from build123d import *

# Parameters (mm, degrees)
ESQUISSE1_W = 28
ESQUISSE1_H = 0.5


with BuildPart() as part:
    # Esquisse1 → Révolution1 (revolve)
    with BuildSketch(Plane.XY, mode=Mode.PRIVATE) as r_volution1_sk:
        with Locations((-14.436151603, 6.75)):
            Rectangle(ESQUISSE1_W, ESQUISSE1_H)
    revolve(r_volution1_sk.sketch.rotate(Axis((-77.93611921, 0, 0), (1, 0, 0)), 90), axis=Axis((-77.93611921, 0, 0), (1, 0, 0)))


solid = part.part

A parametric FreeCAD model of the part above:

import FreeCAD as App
import Part
import Sketcher

V = App.Vector
Q = App.Units.Quantity

doc = App.newDocument("Part")
body = doc.addObject("PartDesign::Body", "Body")

# Sketch on XY plane
sketch1 = doc.addObject("Sketcher::SketchObject", "Sketch")
body.addObject(sketch1)
sketch1.AttachmentSupport = (doc.XY_Plane, [""])
sketch1.MapMode = "FlatFace"
sketch1.addGeometry(Part.LineSegment(V(-28.4, 7, 0), V(-28.4, 6.5, 0)), False)
sketch1.addGeometry(Part.LineSegment(V(-28.4, 6.5, 0), V(-0.4, 6.5, 0)), False)
sketch1.addGeometry(Part.LineSegment(V(-0.4, 6.5, 0), V(-0.4, 7, 0)), False)
sketch1.addGeometry(Part.LineSegment(V(-0.4, 7, 0), V(-28.4, 7, 0)), False)
sketch1.addConstraint(Sketcher.Constraint("Coincident", 0, 2, 1, 1))
sketch1.addConstraint(Sketcher.Constraint("Coincident", 1, 2, 2, 1))
sketch1.addConstraint(Sketcher.Constraint("Coincident", 2, 2, 3, 1))
sketch1.addConstraint(Sketcher.Constraint("Coincident", 3, 2, 0, 1))
sketch1.addConstraint(Sketcher.Constraint("Vertical", 0))
sketch1.addConstraint(Sketcher.Constraint("Horizontal", 1))
sketch1.addConstraint(Sketcher.Constraint("Vertical", 2))
sketch1.addConstraint(Sketcher.Constraint("Horizontal", 3))
sketch1.addConstraint(Sketcher.Constraint("DistanceX", 1, 1, 1, 2, Q("28 mm")))
sketch1.addConstraint(Sketcher.Constraint("DistanceY", 0, 2, 0, 1, Q("0.5 mm")))
sketch1.addConstraint(Sketcher.Constraint("DistanceY", -1, 1, 2, 2, Q("7 mm")))
sketch1.addConstraint(Sketcher.Constraint("DistanceX", 0, 2, -1, 1, Q("28.436152 mm")))
revolution = doc.addObject("PartDesign::Revolution", "Revolution")
body.addObject(revolution)
revolution.Profile = sketch1
revolution.ReferenceAxis = (sketch1, ["H_Axis"])
revolution.Angle = 360

doc.recompute()
